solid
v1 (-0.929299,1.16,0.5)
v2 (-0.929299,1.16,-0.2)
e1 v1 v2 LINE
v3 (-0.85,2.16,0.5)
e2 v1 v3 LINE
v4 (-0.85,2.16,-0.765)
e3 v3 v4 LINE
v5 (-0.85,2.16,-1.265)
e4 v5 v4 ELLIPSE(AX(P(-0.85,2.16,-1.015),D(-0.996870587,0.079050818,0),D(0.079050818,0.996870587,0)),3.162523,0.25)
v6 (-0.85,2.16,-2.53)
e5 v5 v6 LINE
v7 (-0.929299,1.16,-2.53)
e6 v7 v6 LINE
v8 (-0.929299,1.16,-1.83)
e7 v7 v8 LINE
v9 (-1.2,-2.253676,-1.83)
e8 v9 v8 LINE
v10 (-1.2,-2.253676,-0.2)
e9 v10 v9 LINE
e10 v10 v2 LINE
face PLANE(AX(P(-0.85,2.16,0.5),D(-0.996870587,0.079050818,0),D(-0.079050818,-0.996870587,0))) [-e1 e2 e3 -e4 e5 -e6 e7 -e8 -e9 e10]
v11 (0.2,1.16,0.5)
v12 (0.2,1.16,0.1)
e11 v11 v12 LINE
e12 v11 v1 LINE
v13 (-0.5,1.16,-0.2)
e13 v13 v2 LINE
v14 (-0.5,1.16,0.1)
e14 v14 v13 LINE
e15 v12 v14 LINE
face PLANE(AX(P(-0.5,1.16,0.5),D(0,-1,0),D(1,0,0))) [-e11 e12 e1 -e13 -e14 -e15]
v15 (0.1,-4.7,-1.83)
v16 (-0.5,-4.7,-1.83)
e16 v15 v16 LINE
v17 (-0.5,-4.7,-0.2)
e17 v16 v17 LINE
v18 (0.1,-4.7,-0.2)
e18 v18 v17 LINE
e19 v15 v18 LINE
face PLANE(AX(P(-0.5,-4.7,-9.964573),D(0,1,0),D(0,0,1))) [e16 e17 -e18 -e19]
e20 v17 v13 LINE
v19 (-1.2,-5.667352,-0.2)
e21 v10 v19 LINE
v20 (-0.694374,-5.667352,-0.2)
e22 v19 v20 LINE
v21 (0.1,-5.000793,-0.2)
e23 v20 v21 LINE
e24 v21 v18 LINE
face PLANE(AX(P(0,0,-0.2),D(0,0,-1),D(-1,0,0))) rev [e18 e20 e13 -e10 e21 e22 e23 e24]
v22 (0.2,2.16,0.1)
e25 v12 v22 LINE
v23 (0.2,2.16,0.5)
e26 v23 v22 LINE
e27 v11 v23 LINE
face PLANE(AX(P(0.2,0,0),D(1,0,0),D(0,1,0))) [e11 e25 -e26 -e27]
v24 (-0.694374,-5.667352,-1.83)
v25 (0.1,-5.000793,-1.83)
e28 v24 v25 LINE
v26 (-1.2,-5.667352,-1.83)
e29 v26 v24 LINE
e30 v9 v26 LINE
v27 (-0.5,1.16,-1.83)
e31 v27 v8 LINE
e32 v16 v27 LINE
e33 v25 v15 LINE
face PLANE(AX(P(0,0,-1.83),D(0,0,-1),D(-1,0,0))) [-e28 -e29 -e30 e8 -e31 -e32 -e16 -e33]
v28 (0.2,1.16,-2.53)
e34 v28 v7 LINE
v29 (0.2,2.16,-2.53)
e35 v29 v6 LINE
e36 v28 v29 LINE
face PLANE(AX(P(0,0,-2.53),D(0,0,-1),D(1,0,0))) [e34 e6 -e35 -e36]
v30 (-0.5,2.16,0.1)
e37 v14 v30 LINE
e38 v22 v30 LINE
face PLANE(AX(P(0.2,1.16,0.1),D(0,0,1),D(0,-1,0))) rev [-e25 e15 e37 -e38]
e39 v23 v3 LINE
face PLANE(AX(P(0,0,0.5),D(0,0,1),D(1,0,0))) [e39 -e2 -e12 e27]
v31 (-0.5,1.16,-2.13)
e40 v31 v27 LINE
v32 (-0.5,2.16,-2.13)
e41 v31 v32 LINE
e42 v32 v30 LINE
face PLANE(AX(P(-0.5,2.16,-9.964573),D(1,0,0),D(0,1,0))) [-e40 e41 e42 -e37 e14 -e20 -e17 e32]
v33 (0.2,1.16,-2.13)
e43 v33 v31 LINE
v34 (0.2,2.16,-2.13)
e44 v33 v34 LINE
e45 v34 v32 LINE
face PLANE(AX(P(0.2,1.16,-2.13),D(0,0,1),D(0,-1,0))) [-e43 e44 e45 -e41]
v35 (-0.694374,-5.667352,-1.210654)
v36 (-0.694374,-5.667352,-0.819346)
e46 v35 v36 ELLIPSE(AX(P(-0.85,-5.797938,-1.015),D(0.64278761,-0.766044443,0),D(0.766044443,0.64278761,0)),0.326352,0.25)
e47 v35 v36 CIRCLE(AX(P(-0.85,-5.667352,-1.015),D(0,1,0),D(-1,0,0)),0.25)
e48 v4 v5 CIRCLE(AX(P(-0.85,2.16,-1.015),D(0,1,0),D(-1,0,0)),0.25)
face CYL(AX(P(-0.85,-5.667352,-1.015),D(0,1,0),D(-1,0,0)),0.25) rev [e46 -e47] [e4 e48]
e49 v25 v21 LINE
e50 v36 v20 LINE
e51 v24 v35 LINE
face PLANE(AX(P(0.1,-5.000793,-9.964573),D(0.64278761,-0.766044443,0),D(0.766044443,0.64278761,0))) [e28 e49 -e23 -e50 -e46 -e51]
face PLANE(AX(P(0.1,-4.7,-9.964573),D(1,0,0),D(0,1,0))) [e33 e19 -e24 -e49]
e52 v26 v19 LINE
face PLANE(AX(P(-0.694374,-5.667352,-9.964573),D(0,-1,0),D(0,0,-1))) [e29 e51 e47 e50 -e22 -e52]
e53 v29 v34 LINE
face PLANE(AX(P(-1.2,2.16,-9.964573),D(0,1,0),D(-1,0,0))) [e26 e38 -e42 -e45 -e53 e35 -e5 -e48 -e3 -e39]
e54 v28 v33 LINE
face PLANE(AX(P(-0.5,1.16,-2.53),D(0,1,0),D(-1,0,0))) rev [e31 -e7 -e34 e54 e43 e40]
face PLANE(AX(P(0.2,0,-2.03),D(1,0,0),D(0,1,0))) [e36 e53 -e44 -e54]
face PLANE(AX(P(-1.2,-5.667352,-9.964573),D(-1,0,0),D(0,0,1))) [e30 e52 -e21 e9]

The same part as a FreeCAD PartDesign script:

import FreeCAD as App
import Part
import Sketcher
from FreeCAD import Vector
Q = App.Units.Quantity

doc = App.newDocument("Part")
body = doc.addObject("PartDesign::Body", "Body")

# Sketch on XY plane
sketch1 = body.newObject("Sketcher::SketchObject", "Sketch")
sketch1.AttachmentSupport = (doc.getObject("XY_Plane"), [""])
sketch1.MapMode = "FlatFace"
sketch1.AttachmentOffset = App.Placement(Vector(0, 0, -0.2), App.Rotation())
sketch1.addGeometry([
    Part.LineSegment(Vector(-0.5, -4.7, 0), Vector(-0.5, 2.16, 0)),  # 0
    Part.LineSegment(Vector(-0.5, 2.16, 0), Vector(-1.2, 2.16, 0)),  # 1
    Part.LineSegment(Vector(-1.2, 2.16, 0), Vector(-1.2, -5.67, 0)),  # 2
    Part.LineSegment(Vector(-1.2, -5.67, 0), Vector(-0.69, -5.67, 0)),  # 3
    Part.LineSegment(Vector(-0.69, -5.67, 0), Vector(0.1, -5, 0)),  # 4
    Part.LineSegment(Vector(0.1, -5, 0), Vector(0.1, -4.7, 0)),  # 5
    Part.LineSegment(Vector(0.1, -4.7, 0), Vector(-0.5, -4.7, 0)),  # 6
], False)
sketch1.addConstraint([
    Sketcher.Constraint("Coincident", 0, 2, 1, 1),
    Sketcher.Constraint("Coincident", 1, 2, 2, 1),
    Sketcher.Constraint("Coincident", 2, 2, 3, 1),
    Sketcher.Constraint("Coincident", 3, 2, 4, 1),
    Sketcher.Constraint("Coincident", 4, 2, 5, 1),
    Sketcher.Constraint("Coincident", 5, 2, 6, 1),
    Sketcher.Constraint("Coincident", 6, 2, 0, 1),
    Sketcher.Constraint("Vertical", 0),
    Sketcher.Constraint("Horizontal", 1),
    Sketcher.Constraint("Vertical", 2),
    Sketcher.Constraint("Horizontal", 3),
    Sketcher.Constraint("Vertical", 5),
    Sketcher.Constraint("Horizontal", 6),
    Sketcher.Constraint("Angle", 4, Q("40 deg")),
    Sketcher.Constraint("DistanceX", 1, 2, 1, 1, Q("0.7 mm")),
    Sketcher.Constraint("DistanceX", 6, 2, 6, 1, Q("0.6 mm")),
    Sketcher.Constraint("DistanceY", 0, 1, 0, 2, Q("6.86 mm")),
    Sketcher.Constraint("DistanceX", 0, 2, -1, 1, Q("0.5 mm")),
    Sketcher.Constraint("DistanceY", 5, 2, -1, 1, Q("4.7 mm")),
    Sketcher.Constraint("Distance", 4, Q("1.036982 mm")),
    Sketcher.Constraint("DistanceY", 2, 2, 2, 1, Q("7.827352 mm")),
])
pad1 = body.newObject("PartDesign::Pad", "Pad")
pad1.Profile = sketch1
pad1.Length = 1.63
pad1.Reversed = True

# Sketch on XY plane
sketch2 = body.newObject("Sketcher::SketchObject", "Sketch001")
sketch2.AttachmentSupport = (doc.getObject("XY_Plane"), [""])
sketch2.MapMode = "FlatFace"
sketch2.AttachmentOffset = App.Placement(Vector(0, 0, -0.2), App.Rotation())
sketch2.addGeometry([
    Part.LineSegment(Vector(-1.2, 2.2, 0), Vector(-1.2, 1.2, 0)),
    Part.LineSegment(Vector(-1.2, 1.2, 0), Vector(-0.5, 1.2, 0)),
    Part.LineSegment(Vector(-0.5, 1.2, 0), Vector(-0.5, 2.2, 0)),
    Part.LineSegment(Vector(-0.5, 2.2, 0), Vector(-1.2, 2.2, 0)),
], False)
sketch2.addConstraint([
    Sketcher.Constraint("Coincident", 0, 2, 1, 1),
    Sketcher.Constraint("Coincident", 1, 2, 2, 1),
    Sketcher.Constraint("Coincident", 2, 2, 3, 1),
    Sketcher.Constraint("Coincident", 3, 2, 0, 1),
    Sketcher.Constraint("Vertical", 0),
    Sketcher.Constraint("Horizontal", 1),
    Sketcher.Constraint("Vertical", 2),
    Sketcher.Constraint("Horizontal", 3),
    Sketcher.Constraint("DistanceY", 0, 2, 0, 1, Q("1 mm")),
    Sketcher.Constraint("DistanceX", 1, 1, 1, 2, Q("0.7 mm")),
    Sketcher.Constraint("DistanceX", 0, 2, -1, 1, Q("1.2 mm")),
    Sketcher.Constraint("DistanceY", -1, 1, 0, 2, Q("1.16 mm")),
])
pad2 = body.newObject("PartDesign::Pad", "Pad001")
pad2.Profile = sketch2
pad2.Length = 0.7

# Sketch on YZ plane
sketch3 = body.newObject("Sketcher::SketchObject", "Sketch002")
sketch3.AttachmentSupport = (doc.getObject("YZ_Plane"), [""])
sketch3.MapMode = "FlatFace"
sketch3.AttachmentOffset = App.Placement(Vector(0, 0, -0.5), App.Rotation())
sketch3.addGeometry([
    Part.LineSegment(Vector(2.16, 0.5, 0), Vector(1.16, 0.5, 0)),
    Part.LineSegment(Vector(1.16, 0.5, 0), Vector(1.16, 0.1, 0)),
    Part.LineSegment(Vector(1.16, 0.1, 0), Vector(2.16, 0.1, 0)),
    Part.LineSegment(Vector(2.16, 0.1, 0), Vector(2.16, 0.5, 0)),
], False)
sketch3.addConstraint([
    Sketcher.Constraint("Coincident", 0, 2, 1, 1),
    Sketcher.Constraint("Coincident", 1, 2, 2, 1),
    Sketcher.Constraint("Coincident", 2, 2, 3, 1),
    Sketcher.Constraint("Coincident", 3, 2, 0, 1),
    Sketcher.Constraint("Horizontal", 0),
    Sketcher.Constraint("Vertical", 1),
    Sketcher.Constraint("Horizontal", 2),
    Sketcher.Constraint("Vertical", 3),
    Sketcher.Constraint("DistanceX", 0, 2, 0, 1, Q("1 mm")),
    Sketcher.Constraint("DistanceY", 1, 2, 1, 1, Q("0.4 mm")),
    Sketcher.Constraint("DistanceY", -1, 1, 0, 2, Q("0.5 mm")),
    Sketcher.Constraint("DistanceX", -1, 1, 0, 2, Q("1.16 mm")),
])
pad3 = body.newObject("PartDesign::Pad", "Pad002")
pad3.Profile = sketch3
pad3.Length = 0.7
doc.recompute()

datumplane = body.newObject("PartDesign::Plane", "DatumPlane")
datumplane.AttachmentSupport = (doc.getObject("XY_Plane"), [""])
datumplane.MapMode = "FlatFace"
datumplane.AttachmentOffset = App.Placement(Vector(0, 0, -1.015), App.Rotation())
mirrored = body.newObject("PartDesign::Mirrored", "Mirrored")
mirrored.Originals = [pad2, pad3]
mirrored.MirrorPlane = (datumplane, [""])
body.Tip = mirrored

# Sketch on XY plane
sketch4 = body.newObject("Sketcher::SketchObject", "Sketch003")
sketch4.AttachmentSupport = (doc.getObject("XY_Plane"), [""])
sketch4.MapMode = "FlatFace"
sketch4.AttachmentOffset = App.Placement(Vector(0, 0, -0.2), App.Rotation())
sketch4.addGeometry([
    Part.LineSegment(Vector(-1.2, -2.25, 0), Vector(-0.85, 2.16, 0)),
    Part.LineSegment(Vector(-0.85, 2.16, 0), Vector(-1.2, 2.16, 0)),
    Part.LineSegment(Vector(-1.2, 2.16, 0), Vector(-1.2, -2.25, 0)),
], False)
sketch4.addConstraint([
    Sketcher.Constraint("Coincident", 0, 2, 1, 1),
    Sketcher.Constraint("Coincident", 1, 2, 2, 1),
    Sketcher.Constraint("Coincident", 2, 2, 0, 1),
    Sketcher.Constraint("Horizontal", 1),
    Sketcher.Constraint("Vertical", 2),
    Sketcher.Constraint("DistanceX", 1, 2, 1, 1, Q("0.35 mm")),
    Sketcher.Constraint("DistanceX", 1, 2, -1, 1, Q("1.2 mm")),
    Sketcher.Constraint("DistanceY", -1, 1, 0, 2, Q("2.16 mm")),
    Sketcher.Constraint("Distance", 0, Q("4.427532 mm")),
])
pocket1 = body.newObject("PartDesign::Pocket", "Pocket")
pocket1.Profile = sketch4
pocket1.Type = "ThroughAll"
pocket1.Midplane = True

# Sketch on XZ plane
sketch5 = body.newObject("Sketcher::SketchObject", "Sketch004")
sketch5.AttachmentSupport = (doc.getObject("XZ_Plane"), [""])
sketch5.MapMode = "FlatFace"
sketch5.AttachmentOffset = App.Placement(Vector(0, 0, -2.16), App.Rotation())
sketch5.addGeometry(Part.Circle(Vector(-0.85, -1.01, 0), Vector(0, 0, 1), 0.25), False)
sketch5.addConstraint([
    Sketcher.Constraint("Diameter", 0, Q("0.5 mm")),
    Sketcher.Constraint("DistanceX", 0, 3, -1, 1, Q("0.85 mm")),
    Sketcher.Constraint("DistanceY", 0, 3, -1, 1, Q("1.015 mm")),
])
pocket2 = body.newObject("PartDesign::Pocket", "Pocket001")
pocket2.Profile = sketch5
pocket2.Type = "ThroughAll"
pocket2.Reversed = True

doc.recompute()
